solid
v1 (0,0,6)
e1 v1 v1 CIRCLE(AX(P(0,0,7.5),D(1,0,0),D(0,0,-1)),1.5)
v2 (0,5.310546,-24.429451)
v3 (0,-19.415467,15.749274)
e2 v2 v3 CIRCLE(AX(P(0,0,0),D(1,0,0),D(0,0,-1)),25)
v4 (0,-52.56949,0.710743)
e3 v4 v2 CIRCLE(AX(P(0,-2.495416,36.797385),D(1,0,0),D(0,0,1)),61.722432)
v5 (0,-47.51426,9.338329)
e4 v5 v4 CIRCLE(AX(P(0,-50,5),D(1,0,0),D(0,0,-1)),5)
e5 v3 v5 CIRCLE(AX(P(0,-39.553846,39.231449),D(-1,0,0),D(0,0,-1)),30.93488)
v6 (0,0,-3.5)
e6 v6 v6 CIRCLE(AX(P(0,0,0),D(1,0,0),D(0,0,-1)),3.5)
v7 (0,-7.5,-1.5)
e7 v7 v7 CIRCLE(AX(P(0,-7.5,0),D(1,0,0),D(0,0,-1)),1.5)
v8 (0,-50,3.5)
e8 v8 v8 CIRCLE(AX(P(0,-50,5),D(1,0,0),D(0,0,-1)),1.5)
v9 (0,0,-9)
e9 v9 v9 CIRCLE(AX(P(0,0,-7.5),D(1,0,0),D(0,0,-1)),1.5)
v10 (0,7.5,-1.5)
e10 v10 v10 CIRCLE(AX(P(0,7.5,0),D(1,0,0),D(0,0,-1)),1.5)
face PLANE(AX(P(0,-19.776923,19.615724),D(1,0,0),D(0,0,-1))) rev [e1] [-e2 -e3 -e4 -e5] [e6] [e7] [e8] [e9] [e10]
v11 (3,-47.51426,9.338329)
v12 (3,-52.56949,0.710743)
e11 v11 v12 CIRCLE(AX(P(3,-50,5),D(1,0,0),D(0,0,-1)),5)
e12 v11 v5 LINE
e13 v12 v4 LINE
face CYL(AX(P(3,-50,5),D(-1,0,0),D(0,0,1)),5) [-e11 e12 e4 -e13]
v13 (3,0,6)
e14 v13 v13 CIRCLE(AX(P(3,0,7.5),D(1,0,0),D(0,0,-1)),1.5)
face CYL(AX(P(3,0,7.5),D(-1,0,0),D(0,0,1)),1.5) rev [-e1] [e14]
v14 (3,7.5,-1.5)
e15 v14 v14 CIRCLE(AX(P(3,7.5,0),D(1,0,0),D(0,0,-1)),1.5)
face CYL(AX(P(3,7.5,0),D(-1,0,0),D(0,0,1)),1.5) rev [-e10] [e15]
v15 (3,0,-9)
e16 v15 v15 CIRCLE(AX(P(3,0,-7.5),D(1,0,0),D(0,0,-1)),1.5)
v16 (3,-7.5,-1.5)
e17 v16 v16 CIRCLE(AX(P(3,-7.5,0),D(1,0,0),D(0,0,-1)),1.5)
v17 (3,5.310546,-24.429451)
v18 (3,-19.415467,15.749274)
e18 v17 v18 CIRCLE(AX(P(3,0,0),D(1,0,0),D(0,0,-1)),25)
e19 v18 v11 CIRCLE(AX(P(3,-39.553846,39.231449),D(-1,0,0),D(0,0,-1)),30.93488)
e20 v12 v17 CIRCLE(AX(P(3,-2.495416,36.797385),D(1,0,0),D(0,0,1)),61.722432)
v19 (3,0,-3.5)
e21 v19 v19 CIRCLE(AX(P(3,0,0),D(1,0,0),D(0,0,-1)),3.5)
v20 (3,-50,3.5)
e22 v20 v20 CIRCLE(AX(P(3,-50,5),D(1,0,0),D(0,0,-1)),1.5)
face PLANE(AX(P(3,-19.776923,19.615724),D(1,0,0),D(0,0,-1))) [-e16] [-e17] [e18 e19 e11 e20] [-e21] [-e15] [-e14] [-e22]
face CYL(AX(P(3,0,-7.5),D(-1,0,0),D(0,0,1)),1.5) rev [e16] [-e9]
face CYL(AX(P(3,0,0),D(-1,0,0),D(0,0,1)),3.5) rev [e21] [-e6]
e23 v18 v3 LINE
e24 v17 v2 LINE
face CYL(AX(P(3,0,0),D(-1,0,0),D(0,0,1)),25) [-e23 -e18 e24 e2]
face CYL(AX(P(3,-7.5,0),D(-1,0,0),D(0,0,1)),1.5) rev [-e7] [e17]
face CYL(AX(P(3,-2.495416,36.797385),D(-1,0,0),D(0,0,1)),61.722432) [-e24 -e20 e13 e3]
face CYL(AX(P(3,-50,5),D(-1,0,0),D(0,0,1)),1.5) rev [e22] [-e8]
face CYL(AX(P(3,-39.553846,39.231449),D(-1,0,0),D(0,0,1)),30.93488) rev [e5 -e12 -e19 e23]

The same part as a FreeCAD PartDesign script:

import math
import FreeCAD as App
import Part
import Sketcher

V = App.Vector

doc = App.newDocument("Part")
params = doc.addObject("Spreadsheet::Sheet", "Params")
for row, (alias, value) in enumerate([
    ("sketch1_diameter", "3 mm"),
    ("sketch1_diameter2", "7 mm"),
    ("sketch1_radius", "25 mm"),
    ("sketch1_radius2", "5 mm"),
    ("pad1_length", "3 mm"),
], start=1):
    params.set(f"A{row}", alias)
    params.set(f"B{row}", "=" + value)
    params.setAlias(f"B{row}", alias)

body = doc.addObject("PartDesign::Body", "Body")

sketch1 = body.newObject("Sketcher::SketchObject", "Sketch")
sketch1.AttachmentSupport = (doc.getObject("YZ_Plane"), [""])
sketch1.MapMode = "FlatFace"
sketch1.addGeometry([
    Part.ArcOfCircle(Part.Circle(V(0, 0, 0), V(0, 0, 1), 25), math.radians(-77.735683), math.radians(140.95202)),
    Part.ArcOfCircle(Part.Circle(V(-39.553846, 39.231449, 0), V(0, 0, 1), 30.93488), math.radians(-104.911581), math.radians(-49.383518)),
    Part.ArcOfCircle(Part.Circle(V(-50, 5, 0), V(0, 0, 1), 5), math.radians(60.18851), math.radians(239.076179)),
    Part.ArcOfCircle(Part.Circle(V(-2.495416, 36.797385, 0), V(0, 0, 1), 61.722432), math.radians(-144.22102), math.radians(-82.734415)),
    Part.Circle(V(-50, 5, 0), V(0, 0, 1), 1.5),
    Part.Circle(V(0, 7.5, 0), V(0, 0, 1), 1.5),
    Part.Circle(V(-7.5, 0, 0), V(0, 0, 1), 1.5),
    Part.Circle(V(0, 0, 0), V(0, 0, 1), 3.5),
    Part.Circle(V(7.5, 0, 0), V(0, 0, 1), 1.5),
    Part.Circle(V(0, -7.5, 0), V(0, 0, 1), 1.5),
], False)
sketch1.addConstraint([
    Sketcher.Constraint("Coincident", 0, 2, 1, 2),
    Sketcher.Constraint("Coincident", 1, 1, 2, 1),
    Sketcher.Constraint("Coincident", 2, 2, 3, 1),
    Sketcher.Constraint("Coincident", 3, 2, 0, 1),
    Sketcher.Constraint("Coincident", 0, 3, -1, 1),
    Sketcher.Constraint("Coincident", 7, 3, -1, 1),
    Sketcher.Constraint("Coincident", 4, 3, 2, 3),
    Sketcher.Constraint("Equal", 4, 5),
    Sketcher.Constraint("Equal", 5, 6),
    Sketcher.Constraint("Equal", 6, 8),
    Sketcher.Constraint("Equal", 8, 9),
    Sketcher.Constraint("Symmetric", 6, 3, 8, 3, -1, 1),
    Sketcher.Constraint("Symmetric", 5, 3, 9, 3, -1, 1),
    Sketcher.Constraint("PointOnObject", 5, 3, -2),
    Sketcher.Constraint("PointOnObject", 6, 3, -1),
    Sketcher.Constraint("Diameter", 4, 3.0),
    Sketcher.Constraint("Diameter", 7, 7.0),
    Sketcher.Constraint("Radius", 0, 25.0),
    Sketcher.Constraint("Radius", 2, 5.0),
    Sketcher.Constraint("DistanceX", 2, 3, -1, 1, 50.0),
    Sketcher.Constraint("DistanceY", -1, 1, 2, 3, 5.0),
    Sketcher.Constraint("DistanceX", 6, 3, 8, 3, 15.0),
    Sketcher.Constraint("DistanceY", 9, 3, 5, 3, 15.0),
    Sketcher.Constraint("Radius", 1, 30.93488),
    Sketcher.Constraint("Radius", 3, 61.722432),
    Sketcher.Constraint("DistanceY", -1, 1, 1, 3, 39.231449),
    Sketcher.Constraint("DistanceX", 1, 1, -1, 1, 47.51426),
    Sketcher.Constraint("DistanceX", 2, 2, -1, 1, 52.56949),
    Sketcher.Constraint("DistanceY", 3, 2, -1, 1, 24.429451),
])
sketch1.setExpression("Constraints[15]", "Params.sketch1_diameter")
sketch1.setExpression("Constraints[16]", "Params.sketch1_diameter2")
sketch1.setExpression("Constraints[17]", "Params.sketch1_radius")
sketch1.setExpression("Constraints[18]", "Params.sketch1_radius2")
pad1 = body.newObject("PartDesign::Pad", "Pad")
pad1.Profile = sketch1
pad1.setExpression("Length", "Params.pad1_length")

doc.recompute()
